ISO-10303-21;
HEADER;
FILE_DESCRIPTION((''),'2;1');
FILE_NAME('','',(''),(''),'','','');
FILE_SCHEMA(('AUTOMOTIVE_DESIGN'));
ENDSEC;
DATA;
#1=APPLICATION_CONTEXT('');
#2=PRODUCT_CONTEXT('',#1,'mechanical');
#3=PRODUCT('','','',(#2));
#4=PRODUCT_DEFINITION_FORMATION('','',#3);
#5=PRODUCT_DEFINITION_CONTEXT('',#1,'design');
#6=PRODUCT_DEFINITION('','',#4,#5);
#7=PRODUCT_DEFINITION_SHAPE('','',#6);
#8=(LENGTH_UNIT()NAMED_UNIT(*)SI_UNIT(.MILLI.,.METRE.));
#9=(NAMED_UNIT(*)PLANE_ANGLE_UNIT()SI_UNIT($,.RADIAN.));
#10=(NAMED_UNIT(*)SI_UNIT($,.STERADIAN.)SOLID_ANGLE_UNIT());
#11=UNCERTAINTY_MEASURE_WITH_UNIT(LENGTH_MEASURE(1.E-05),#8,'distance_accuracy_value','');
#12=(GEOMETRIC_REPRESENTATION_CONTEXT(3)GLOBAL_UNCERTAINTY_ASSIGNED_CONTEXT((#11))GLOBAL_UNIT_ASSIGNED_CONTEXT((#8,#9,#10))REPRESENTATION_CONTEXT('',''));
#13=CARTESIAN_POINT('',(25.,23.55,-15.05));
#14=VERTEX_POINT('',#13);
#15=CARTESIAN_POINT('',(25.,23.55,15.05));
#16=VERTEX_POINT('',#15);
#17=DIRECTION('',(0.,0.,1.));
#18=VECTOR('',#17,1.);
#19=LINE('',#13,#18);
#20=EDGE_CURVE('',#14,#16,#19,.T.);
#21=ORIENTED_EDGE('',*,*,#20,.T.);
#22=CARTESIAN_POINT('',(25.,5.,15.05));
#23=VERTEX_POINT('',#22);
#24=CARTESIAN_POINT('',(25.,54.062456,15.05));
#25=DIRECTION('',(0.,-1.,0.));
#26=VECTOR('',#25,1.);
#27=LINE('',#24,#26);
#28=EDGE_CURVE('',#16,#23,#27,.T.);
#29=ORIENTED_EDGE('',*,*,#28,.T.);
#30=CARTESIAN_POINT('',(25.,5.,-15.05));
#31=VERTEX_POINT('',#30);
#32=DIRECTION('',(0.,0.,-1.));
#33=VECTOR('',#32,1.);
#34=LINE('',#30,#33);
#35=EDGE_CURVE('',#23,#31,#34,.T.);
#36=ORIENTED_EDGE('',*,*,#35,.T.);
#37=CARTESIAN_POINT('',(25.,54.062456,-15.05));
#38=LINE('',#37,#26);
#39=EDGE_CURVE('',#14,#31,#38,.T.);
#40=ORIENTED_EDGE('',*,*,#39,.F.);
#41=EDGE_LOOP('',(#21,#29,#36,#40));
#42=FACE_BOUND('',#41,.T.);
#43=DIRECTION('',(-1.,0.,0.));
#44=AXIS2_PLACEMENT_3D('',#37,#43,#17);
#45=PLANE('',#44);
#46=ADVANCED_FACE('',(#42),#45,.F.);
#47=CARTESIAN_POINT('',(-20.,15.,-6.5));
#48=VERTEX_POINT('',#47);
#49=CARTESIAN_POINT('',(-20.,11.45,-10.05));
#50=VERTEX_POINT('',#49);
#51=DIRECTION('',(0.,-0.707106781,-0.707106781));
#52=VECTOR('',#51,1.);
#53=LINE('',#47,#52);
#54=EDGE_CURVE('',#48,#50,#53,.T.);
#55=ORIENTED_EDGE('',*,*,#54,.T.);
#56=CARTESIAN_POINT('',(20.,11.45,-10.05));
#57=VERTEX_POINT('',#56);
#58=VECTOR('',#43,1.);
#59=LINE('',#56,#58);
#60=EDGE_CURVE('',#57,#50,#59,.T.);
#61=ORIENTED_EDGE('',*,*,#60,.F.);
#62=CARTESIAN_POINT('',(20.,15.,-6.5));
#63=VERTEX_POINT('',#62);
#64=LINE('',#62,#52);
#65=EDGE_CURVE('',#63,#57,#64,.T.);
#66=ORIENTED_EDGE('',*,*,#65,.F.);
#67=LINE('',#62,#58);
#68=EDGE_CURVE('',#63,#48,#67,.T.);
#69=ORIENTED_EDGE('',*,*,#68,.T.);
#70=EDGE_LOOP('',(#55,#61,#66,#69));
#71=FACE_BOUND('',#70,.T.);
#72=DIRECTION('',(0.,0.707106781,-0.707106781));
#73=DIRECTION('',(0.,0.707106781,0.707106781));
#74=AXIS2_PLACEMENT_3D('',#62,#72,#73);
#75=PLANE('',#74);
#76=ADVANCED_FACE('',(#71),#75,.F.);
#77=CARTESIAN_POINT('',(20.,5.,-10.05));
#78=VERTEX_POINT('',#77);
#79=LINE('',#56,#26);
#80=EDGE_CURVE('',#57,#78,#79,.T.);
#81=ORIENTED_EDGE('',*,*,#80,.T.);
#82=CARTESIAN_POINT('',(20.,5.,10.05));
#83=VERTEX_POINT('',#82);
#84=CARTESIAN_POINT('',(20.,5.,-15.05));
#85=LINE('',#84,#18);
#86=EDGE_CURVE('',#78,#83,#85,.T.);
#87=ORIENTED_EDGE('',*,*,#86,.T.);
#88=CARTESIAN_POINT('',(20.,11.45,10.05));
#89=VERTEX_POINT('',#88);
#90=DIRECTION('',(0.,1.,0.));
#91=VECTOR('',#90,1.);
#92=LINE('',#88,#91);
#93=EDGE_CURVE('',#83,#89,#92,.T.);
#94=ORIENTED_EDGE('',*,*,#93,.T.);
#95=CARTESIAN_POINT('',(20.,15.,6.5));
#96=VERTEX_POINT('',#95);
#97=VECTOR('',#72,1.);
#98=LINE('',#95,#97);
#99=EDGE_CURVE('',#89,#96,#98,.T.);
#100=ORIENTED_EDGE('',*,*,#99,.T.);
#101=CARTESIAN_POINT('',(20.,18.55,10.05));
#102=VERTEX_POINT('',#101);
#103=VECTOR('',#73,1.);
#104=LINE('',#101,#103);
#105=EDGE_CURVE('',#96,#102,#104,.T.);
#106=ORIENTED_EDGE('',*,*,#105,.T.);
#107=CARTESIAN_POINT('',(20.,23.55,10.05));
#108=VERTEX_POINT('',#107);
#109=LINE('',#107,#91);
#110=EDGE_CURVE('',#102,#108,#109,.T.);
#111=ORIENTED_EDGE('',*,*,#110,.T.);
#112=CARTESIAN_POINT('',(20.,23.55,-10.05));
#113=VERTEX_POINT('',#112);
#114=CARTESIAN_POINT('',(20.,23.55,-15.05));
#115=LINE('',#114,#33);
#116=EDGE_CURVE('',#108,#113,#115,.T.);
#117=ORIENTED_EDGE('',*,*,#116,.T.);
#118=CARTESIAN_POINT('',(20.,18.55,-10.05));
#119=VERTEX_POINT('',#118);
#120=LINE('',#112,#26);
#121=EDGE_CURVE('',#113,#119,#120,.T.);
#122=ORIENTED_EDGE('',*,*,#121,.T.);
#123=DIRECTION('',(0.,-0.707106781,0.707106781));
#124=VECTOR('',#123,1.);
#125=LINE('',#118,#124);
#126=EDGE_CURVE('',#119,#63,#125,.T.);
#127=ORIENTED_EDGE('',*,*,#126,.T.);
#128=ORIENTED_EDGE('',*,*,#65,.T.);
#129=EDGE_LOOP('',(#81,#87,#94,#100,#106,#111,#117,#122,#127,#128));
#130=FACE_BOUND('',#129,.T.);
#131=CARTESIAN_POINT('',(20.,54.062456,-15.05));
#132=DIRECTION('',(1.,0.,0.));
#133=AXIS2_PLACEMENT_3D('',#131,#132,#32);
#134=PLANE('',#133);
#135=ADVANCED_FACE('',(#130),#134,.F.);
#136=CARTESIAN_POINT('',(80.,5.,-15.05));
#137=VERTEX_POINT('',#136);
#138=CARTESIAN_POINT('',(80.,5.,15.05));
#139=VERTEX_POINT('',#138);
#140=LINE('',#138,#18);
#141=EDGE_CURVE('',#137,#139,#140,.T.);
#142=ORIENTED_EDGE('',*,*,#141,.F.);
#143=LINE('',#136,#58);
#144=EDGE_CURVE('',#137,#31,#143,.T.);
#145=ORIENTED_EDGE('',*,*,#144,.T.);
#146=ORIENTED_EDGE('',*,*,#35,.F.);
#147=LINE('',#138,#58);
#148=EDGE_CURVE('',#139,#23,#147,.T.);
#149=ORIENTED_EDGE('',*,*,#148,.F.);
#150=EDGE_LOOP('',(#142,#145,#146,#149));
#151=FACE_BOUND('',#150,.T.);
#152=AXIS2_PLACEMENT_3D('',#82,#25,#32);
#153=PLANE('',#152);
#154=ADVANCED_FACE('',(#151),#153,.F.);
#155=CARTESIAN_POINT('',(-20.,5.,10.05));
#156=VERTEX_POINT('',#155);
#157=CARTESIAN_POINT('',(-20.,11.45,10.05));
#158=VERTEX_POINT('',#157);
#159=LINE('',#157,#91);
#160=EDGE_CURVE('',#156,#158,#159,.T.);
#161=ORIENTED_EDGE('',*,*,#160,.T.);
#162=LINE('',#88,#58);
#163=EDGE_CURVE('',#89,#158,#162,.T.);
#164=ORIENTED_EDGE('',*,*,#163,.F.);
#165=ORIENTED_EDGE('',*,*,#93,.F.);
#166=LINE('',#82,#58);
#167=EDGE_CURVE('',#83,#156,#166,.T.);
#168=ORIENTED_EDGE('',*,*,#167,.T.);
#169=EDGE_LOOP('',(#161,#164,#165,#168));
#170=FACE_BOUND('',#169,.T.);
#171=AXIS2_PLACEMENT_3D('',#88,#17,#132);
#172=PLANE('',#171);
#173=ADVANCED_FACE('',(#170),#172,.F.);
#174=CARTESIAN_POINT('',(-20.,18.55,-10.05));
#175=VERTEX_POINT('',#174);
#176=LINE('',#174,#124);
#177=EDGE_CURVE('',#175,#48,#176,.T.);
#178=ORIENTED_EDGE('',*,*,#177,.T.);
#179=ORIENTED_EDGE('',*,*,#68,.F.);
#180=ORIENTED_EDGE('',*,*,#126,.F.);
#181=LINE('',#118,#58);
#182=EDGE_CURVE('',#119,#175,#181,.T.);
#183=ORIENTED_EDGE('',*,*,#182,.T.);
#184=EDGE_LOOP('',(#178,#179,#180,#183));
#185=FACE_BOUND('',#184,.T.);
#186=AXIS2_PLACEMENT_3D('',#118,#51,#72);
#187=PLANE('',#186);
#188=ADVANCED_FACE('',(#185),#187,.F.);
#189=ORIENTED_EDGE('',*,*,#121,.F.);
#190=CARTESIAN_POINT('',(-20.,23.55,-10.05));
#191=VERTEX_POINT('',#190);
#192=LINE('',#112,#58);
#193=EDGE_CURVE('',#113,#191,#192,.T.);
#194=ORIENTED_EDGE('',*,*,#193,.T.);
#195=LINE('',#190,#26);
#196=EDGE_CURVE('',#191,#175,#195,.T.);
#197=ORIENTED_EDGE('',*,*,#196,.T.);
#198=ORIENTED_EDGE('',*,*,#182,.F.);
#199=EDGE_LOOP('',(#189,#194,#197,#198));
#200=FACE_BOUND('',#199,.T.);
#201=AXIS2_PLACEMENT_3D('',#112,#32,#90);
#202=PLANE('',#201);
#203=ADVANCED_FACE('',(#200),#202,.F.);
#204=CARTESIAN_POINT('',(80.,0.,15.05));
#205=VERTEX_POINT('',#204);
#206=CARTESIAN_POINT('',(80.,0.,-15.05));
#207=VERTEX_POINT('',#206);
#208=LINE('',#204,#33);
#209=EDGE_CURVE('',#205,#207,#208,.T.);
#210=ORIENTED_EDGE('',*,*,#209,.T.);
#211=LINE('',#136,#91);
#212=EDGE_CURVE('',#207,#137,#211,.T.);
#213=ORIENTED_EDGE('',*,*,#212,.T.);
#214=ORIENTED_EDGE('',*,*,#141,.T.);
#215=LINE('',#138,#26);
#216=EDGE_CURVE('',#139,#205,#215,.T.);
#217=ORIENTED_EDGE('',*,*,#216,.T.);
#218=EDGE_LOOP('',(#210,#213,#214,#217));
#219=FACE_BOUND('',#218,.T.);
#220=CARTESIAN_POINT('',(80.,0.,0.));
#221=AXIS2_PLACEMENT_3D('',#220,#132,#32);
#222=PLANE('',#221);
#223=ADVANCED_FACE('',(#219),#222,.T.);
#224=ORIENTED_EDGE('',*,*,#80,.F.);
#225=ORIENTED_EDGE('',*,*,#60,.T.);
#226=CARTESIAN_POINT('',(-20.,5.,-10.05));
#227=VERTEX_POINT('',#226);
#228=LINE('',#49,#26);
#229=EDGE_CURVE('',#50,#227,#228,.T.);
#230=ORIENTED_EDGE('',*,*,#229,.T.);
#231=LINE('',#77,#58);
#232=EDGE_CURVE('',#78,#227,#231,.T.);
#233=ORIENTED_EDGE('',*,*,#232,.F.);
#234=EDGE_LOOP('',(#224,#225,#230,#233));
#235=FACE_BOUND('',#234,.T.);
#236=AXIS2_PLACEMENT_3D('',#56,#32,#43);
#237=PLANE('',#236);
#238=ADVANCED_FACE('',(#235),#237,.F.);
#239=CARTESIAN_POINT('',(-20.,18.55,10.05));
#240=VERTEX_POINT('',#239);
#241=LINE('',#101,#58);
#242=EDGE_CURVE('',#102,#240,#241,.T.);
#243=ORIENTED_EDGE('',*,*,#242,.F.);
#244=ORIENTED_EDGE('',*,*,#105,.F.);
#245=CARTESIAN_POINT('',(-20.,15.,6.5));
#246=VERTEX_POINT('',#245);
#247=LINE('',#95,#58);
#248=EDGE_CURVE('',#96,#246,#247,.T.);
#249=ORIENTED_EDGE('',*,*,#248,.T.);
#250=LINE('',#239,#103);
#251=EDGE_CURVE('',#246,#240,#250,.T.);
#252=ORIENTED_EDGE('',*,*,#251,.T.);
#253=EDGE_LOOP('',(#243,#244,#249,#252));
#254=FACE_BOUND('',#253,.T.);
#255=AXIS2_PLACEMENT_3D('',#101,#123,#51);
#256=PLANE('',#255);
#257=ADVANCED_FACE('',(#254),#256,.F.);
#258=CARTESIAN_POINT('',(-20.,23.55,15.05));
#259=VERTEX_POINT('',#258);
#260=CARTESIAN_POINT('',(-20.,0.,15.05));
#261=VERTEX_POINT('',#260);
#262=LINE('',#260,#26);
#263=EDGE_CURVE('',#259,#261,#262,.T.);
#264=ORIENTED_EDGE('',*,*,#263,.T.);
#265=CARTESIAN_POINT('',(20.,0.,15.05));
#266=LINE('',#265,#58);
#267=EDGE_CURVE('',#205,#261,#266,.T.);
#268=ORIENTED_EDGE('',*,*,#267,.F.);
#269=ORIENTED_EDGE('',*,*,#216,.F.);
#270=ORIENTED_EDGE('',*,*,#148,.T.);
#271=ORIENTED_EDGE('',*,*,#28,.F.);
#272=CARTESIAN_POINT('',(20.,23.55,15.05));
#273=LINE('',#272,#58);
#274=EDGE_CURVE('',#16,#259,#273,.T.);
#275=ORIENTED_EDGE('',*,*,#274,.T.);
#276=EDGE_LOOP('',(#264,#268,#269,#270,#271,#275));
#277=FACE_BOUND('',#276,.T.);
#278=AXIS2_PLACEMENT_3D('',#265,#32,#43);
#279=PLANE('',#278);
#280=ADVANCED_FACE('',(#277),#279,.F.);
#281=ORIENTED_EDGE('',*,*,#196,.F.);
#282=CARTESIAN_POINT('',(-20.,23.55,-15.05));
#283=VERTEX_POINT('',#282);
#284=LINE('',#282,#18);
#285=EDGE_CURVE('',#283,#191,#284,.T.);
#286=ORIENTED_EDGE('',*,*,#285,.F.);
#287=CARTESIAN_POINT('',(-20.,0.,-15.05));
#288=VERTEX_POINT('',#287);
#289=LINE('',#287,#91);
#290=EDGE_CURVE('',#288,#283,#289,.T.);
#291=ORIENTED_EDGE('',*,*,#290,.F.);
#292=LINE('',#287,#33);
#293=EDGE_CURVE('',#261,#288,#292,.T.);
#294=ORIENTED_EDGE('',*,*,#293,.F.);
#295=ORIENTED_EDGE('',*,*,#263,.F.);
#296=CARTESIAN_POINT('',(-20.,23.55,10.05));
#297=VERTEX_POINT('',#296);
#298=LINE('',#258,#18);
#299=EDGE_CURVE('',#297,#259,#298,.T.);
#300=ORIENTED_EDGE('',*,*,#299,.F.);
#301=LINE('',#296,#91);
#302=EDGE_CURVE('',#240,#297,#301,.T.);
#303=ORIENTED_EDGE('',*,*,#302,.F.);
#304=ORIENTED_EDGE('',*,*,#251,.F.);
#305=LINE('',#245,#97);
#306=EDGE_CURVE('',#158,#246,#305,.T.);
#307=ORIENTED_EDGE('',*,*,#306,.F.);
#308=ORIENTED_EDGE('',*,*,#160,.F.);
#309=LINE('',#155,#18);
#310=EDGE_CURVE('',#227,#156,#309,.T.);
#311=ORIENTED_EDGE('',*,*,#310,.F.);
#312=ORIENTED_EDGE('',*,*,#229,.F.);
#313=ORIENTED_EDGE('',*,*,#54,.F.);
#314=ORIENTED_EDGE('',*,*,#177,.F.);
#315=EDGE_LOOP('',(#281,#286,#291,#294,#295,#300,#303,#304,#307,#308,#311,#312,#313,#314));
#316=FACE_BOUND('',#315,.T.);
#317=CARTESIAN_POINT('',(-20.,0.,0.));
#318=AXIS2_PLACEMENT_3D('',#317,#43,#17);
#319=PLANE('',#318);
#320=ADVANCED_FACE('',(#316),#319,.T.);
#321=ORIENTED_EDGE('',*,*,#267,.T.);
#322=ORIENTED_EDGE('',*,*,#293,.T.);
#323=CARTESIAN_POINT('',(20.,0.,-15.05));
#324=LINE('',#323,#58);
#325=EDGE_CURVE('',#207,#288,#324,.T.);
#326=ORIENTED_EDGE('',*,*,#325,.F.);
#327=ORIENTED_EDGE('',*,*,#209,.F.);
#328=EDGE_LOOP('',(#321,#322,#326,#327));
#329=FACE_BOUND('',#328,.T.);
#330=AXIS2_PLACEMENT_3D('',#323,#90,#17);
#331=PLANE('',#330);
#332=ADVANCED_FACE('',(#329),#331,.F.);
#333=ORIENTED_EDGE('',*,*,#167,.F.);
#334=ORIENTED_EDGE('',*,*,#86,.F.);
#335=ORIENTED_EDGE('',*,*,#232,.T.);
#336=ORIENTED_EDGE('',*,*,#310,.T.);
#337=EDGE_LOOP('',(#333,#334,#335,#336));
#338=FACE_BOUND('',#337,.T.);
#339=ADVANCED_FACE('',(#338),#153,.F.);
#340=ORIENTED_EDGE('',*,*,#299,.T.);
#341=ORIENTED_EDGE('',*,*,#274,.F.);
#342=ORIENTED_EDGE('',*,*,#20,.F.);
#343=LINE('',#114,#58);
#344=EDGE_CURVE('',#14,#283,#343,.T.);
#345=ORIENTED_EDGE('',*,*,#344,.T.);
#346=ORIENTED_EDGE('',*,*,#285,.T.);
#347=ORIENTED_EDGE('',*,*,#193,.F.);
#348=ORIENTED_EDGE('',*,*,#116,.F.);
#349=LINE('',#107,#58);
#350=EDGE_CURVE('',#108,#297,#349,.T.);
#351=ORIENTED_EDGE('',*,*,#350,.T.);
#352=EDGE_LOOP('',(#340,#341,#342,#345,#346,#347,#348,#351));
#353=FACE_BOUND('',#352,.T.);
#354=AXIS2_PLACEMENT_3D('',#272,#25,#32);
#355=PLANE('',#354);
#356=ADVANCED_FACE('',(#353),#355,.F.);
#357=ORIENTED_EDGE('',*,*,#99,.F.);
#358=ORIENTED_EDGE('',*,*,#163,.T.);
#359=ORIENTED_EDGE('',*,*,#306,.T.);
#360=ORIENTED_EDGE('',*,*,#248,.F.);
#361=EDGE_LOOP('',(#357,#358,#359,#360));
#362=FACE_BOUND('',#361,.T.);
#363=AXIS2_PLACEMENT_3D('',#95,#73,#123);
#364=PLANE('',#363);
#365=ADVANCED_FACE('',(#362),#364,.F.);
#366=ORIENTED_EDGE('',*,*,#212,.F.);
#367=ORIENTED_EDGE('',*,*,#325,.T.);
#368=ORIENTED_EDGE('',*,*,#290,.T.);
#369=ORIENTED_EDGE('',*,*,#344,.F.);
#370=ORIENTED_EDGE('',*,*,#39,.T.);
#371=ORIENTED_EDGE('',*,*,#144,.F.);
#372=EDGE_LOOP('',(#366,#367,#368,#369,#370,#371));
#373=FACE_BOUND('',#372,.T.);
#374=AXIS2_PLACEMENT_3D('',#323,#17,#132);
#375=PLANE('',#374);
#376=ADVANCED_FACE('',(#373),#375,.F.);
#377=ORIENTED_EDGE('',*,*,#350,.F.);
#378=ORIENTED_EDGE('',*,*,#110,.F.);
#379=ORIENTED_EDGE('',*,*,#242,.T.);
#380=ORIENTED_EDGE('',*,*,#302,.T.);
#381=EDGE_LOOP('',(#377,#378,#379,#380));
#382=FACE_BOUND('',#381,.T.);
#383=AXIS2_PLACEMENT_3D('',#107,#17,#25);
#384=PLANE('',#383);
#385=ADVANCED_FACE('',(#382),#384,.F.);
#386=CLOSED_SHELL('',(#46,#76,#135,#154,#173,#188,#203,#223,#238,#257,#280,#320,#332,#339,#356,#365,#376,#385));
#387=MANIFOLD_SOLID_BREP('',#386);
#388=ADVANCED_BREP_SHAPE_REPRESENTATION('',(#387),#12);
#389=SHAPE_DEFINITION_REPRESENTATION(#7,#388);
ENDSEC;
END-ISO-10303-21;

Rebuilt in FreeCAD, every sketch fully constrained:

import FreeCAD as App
import Part
import Sketcher

V = App.Vector


def add_polygon(sketch, points):
    """Adds a closed chain of lines whose ends are joined by coincident constraints."""
    first, n = sketch.GeometryCount, len(points)
    for a, b in zip(points, points[1:] + points[:1]):
        sketch.addGeometry(Part.LineSegment(App.Vector(*a, 0), App.Vector(*b, 0)), False)
    for i in range(n):
        sketch.addConstraint(Sketcher.Constraint("Coincident", first + i, 2, first + (i + 1) % n, 1))

doc = App.newDocument("Part")
body = doc.addObject("PartDesign::Body", "Body")

sketch1 = doc.addObject("Sketcher::SketchObject", "Sketch")
body.addObject(sketch1)
sketch1.AttachmentSupport = (doc.YZ_Plane, [""])
sketch1.MapMode = "FlatFace"
add_polygon(sketch1, [(0, 15.05), (0, -15.05), (23.55, -15.05), (23.55, -10.05), (18.55, -10.05), (15, -6.5), (11.45, -10.05), (5, -10.05), (5, 10.05), (11.45, 10.05), (15, 6.5), (18.55, 10.05), (23.55, 10.05), (23.55, 15.05)])
sketch1.addConstraint([
    Sketcher.Constraint("Vertical", 0),
    Sketcher.Constraint("Horizontal", 1),
    Sketcher.Constraint("Vertical", 2),
    Sketcher.Constraint("Horizontal", 3),
    Sketcher.Constraint("Horizontal", 6),
    Sketcher.Constraint("Vertical", 7),
    Sketcher.Constraint("Horizontal", 8),
    Sketcher.Constraint("Horizontal", 11),
    Sketcher.Constraint("Vertical", 12),
    Sketcher.Constraint("Horizontal", 13),
    Sketcher.Constraint("Symmetric", 0, 2, 13, 2, -1, 1),
    Sketcher.Constraint("Symmetric", 5, 2, 8, 2, -1),
    Sketcher.Constraint("Symmetric", 4, 2, 9, 2, -1),
    Sketcher.Constraint("Symmetric", 3, 2, 10, 2, -1),
    Sketcher.Constraint("Perpendicular", 4, 5),
    Sketcher.Constraint("Perpendicular", 5, 9),
    Sketcher.Constraint("Horizontal", 3, 2, 5, 2),
    Sketcher.Constraint("Vertical", 2, 2, 11, 2),
    Sketcher.Constraint("Equal", 11, 2),
    Sketcher.Constraint("DistanceX", 3, 2, 3, 1, 5.0),
    Sketcher.Constraint("DistanceY", 0, 2, 0, 1, 30.1),
    Sketcher.Constraint("DistanceX", -1, 1, 4, 2, 15.0),
    Sketcher.Constraint("DistanceX", -1, 1, 6, 2, 5.0),
    Sketcher.Constraint("DistanceY", 4, 2, 9, 2, 13.0),
])
pad1 = doc.addObject("PartDesign::Pad", "Pad")
body.addObject(pad1)
pad1.Profile = sketch1
pad1.Length = 40
pad1.Midplane = True

sketch2 = doc.addObject("Sketcher::SketchObject", "Sketch001")
body.addObject(sketch2)
sketch2.AttachmentSupport = (doc.YZ_Plane, [""])
sketch2.MapMode = "FlatFace"
sketch2.AttachmentOffset = App.Placement(V(0, 0, 20), App.Rotation())
add_polygon(sketch2, [(5, 15.05), (0, 15.05), (0, -15.05), (5, -15.05)])
sketch2.addConstraint([
    Sketcher.Constraint("Horizontal", 0),
    Sketcher.Constraint("Vertical", 1),
    Sketcher.Constraint("Horizontal", 2),
    Sketcher.Constraint("Vertical", 3),
    Sketcher.Constraint("Symmetric", 0, 2, 1, 2, -1, 1),
    Sketcher.Constraint("DistanceX", 0, 2, 0, 1, 5.0),
    Sketcher.Constraint("DistanceY", 1, 2, 1, 1, 30.1),
])
pad2 = doc.addObject("PartDesign::Pad", "Pad001")
body.addObject(pad2)
pad2.Profile = sketch2
pad2.Length = 60

sketch3 = doc.addObject("Sketcher::SketchObject", "Sketch002")
body.addObject(sketch3)
sketch3.AttachmentSupport = (doc.XZ_Plane, [""])
sketch3.MapMode = "FlatFace"
sketch3.AttachmentOffset = App.Placement(V(0, 0, -5), App.Rotation())
add_polygon(sketch3, [(20, -15.05), (20, 15.05), (25, 15.05), (25, -15.05)])
sketch3.addConstraint([
    Sketcher.Constraint("Vertical", 0),
    Sketcher.Constraint("Horizontal", 1),
    Sketcher.Constraint("Vertical", 2),
    Sketcher.Constraint("Horizontal", 3),
    Sketcher.Constraint("DistanceX", 1, 1, 1, 2, 5.0),
    Sketcher.Constraint("DistanceY", 0, 1, 0, 2, 30.1),
    Sketcher.Constraint("DistanceX", -1, 1, 0, 2, 20.0),
    Sketcher.Constraint("DistanceY", -1, 1, 0, 2, 15.05),
])
pad3 = doc.addObject("PartDesign::Pad", "Pad002")
body.addObject(pad3)
pad3.Profile = sketch3
pad3.Length = 18.55
pad3.Reversed = True

doc.recompute()
